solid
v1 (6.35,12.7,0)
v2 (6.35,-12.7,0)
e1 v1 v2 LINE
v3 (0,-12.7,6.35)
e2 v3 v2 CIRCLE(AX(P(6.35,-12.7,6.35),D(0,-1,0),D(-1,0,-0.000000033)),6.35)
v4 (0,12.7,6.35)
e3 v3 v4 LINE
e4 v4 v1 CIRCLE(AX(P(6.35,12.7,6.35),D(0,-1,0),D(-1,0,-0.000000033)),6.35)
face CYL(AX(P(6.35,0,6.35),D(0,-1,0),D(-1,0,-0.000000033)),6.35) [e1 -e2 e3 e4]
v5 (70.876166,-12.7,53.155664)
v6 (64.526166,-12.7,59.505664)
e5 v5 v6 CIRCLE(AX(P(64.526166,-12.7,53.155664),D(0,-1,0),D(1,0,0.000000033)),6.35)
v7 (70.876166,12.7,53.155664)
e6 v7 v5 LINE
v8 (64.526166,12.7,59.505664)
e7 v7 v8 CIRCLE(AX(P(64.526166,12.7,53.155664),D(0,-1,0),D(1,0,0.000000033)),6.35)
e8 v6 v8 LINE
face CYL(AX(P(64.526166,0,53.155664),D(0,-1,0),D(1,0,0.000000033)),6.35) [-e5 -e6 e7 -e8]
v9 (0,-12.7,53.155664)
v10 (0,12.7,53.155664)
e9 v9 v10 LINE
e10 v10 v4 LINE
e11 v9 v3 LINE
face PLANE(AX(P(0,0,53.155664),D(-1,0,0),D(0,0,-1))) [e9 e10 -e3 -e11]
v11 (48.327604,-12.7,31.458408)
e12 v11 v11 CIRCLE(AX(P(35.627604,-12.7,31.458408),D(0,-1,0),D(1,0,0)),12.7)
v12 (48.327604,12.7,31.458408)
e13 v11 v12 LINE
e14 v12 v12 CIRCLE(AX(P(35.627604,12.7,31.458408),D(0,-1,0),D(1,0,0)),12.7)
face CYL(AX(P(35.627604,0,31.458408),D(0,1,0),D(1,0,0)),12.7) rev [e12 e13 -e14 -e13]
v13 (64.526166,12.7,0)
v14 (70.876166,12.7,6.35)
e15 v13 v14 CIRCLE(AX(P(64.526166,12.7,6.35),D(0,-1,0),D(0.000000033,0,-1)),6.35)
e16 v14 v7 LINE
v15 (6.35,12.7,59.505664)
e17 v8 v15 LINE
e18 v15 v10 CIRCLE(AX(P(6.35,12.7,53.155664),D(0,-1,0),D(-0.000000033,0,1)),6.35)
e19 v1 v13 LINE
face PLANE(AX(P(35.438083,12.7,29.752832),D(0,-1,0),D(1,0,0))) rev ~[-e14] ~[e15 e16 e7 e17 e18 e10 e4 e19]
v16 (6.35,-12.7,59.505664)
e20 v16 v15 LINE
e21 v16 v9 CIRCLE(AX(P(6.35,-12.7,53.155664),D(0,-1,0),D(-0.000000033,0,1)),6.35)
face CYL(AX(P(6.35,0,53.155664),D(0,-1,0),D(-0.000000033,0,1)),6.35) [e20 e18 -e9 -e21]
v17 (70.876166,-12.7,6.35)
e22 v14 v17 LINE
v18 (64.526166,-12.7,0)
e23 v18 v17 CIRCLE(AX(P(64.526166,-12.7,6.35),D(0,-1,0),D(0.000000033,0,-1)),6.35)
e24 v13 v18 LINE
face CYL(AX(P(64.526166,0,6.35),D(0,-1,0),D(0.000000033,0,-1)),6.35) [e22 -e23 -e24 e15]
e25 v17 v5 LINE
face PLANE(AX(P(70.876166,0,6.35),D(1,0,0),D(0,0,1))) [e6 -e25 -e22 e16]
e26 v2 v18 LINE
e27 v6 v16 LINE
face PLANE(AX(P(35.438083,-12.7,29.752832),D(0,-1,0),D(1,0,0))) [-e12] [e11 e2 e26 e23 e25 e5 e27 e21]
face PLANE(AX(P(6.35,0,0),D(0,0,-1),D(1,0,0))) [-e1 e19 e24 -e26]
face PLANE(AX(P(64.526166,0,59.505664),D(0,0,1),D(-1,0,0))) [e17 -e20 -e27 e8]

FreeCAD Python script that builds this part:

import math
import FreeCAD as App
import Part
import Sketcher
Q = App.Units.Quantity

doc = App.newDocument("Part")
body = doc.addObject("PartDesign::Body", "Body")

# Sketch on XZ plane
sketch1 = body.newObject("Sketcher::SketchObject", "Sketch")
sketch1.AttachmentSupport = (doc.getObject("XZ_Plane"), [""])
sketch1.MapMode = "FlatFace"
sketch1.addGeometry([
    Part.ArcOfCircle(Part.Circle(App.Vector(6, 6, 0), App.Vector(0, 0, 1), 6), math.radians(-180), math.radians(-90)),  # 0
    Part.LineSegment(App.Vector(6, 0, 0), App.Vector(65, 0, 0)),  # 1
    Part.ArcOfCircle(Part.Circle(App.Vector(65, 6, 0), App.Vector(0, 0, 1), 6), math.radians(-90), math.radians(0)),  # 2
    Part.LineSegment(App.Vector(71, 6, 0), App.Vector(71, 53, 0)),  # 3
    Part.ArcOfCircle(Part.Circle(App.Vector(65, 53, 0), App.Vector(0, 0, 1), 6), math.radians(0), math.radians(90)),  # 4
    Part.LineSegment(App.Vector(65, 60, 0), App.Vector(6, 60, 0)),  # 5
    Part.ArcOfCircle(Part.Circle(App.Vector(6, 53, 0), App.Vector(0, 0, 1), 6), math.radians(90), math.radians(180)),  # 6
    Part.LineSegment(App.Vector(0, 53, 0), App.Vector(0, 6, 0)),  # 7
    Part.Circle(App.Vector(36, 31, 0), App.Vector(0, 0, 1), 13),  # 8
], False)
sketch1.addConstraint([
    Sketcher.Constraint("Tangent", 0, 2, 1, 1),
    Sketcher.Constraint("Tangent", 1, 2, 2, 1),
    Sketcher.Constraint("Tangent", 2, 2, 3, 1),
    Sketcher.Constraint("Tangent", 3, 2, 4, 1),
    Sketcher.Constraint("Tangent", 4, 2, 5, 1),
    Sketcher.Constraint("Tangent", 5, 2, 6, 1),
    Sketcher.Constraint("Tangent", 6, 2, 7, 1),
    Sketcher.Constraint("Tangent", 7, 2, 0, 1),
    Sketcher.Constraint("Horizontal", 1),
    Sketcher.Constraint("Vertical", 3),
    Sketcher.Constraint("Horizontal", 5),
    Sketcher.Constraint("Vertical", 7),
    Sketcher.Constraint("Equal", 0, 2),
    Sketcher.Constraint("Equal", 2, 4),
    Sketcher.Constraint("Equal", 4, 6),
    Sketcher.Constraint("PointOnObject", 0, 2, -1),
    Sketcher.Constraint("PointOnObject", 6, 2, -2),
    Sketcher.Constraint("Diameter", 8, Q("1 in")),
    Sketcher.Constraint("Radius", 0, Q("0.25 in")),
    Sketcher.Constraint("DistanceX", 1, 1, 1, 2, 58.176166),
    Sketcher.Constraint("DistanceY", 3, 1, 3, 2, 46.805664),
    Sketcher.Constraint("DistanceX", 8, 3, 4, 3, 28.898562),
    Sketcher.Constraint("DistanceY", -1, 1, 8, 3, 31.458408),
])
pad1 = body.newObject("PartDesign::Pad", "Pad")
pad1.Profile = sketch1
pad1.Length = Q("1 in")
pad1.Midplane = True

doc.recompute()
